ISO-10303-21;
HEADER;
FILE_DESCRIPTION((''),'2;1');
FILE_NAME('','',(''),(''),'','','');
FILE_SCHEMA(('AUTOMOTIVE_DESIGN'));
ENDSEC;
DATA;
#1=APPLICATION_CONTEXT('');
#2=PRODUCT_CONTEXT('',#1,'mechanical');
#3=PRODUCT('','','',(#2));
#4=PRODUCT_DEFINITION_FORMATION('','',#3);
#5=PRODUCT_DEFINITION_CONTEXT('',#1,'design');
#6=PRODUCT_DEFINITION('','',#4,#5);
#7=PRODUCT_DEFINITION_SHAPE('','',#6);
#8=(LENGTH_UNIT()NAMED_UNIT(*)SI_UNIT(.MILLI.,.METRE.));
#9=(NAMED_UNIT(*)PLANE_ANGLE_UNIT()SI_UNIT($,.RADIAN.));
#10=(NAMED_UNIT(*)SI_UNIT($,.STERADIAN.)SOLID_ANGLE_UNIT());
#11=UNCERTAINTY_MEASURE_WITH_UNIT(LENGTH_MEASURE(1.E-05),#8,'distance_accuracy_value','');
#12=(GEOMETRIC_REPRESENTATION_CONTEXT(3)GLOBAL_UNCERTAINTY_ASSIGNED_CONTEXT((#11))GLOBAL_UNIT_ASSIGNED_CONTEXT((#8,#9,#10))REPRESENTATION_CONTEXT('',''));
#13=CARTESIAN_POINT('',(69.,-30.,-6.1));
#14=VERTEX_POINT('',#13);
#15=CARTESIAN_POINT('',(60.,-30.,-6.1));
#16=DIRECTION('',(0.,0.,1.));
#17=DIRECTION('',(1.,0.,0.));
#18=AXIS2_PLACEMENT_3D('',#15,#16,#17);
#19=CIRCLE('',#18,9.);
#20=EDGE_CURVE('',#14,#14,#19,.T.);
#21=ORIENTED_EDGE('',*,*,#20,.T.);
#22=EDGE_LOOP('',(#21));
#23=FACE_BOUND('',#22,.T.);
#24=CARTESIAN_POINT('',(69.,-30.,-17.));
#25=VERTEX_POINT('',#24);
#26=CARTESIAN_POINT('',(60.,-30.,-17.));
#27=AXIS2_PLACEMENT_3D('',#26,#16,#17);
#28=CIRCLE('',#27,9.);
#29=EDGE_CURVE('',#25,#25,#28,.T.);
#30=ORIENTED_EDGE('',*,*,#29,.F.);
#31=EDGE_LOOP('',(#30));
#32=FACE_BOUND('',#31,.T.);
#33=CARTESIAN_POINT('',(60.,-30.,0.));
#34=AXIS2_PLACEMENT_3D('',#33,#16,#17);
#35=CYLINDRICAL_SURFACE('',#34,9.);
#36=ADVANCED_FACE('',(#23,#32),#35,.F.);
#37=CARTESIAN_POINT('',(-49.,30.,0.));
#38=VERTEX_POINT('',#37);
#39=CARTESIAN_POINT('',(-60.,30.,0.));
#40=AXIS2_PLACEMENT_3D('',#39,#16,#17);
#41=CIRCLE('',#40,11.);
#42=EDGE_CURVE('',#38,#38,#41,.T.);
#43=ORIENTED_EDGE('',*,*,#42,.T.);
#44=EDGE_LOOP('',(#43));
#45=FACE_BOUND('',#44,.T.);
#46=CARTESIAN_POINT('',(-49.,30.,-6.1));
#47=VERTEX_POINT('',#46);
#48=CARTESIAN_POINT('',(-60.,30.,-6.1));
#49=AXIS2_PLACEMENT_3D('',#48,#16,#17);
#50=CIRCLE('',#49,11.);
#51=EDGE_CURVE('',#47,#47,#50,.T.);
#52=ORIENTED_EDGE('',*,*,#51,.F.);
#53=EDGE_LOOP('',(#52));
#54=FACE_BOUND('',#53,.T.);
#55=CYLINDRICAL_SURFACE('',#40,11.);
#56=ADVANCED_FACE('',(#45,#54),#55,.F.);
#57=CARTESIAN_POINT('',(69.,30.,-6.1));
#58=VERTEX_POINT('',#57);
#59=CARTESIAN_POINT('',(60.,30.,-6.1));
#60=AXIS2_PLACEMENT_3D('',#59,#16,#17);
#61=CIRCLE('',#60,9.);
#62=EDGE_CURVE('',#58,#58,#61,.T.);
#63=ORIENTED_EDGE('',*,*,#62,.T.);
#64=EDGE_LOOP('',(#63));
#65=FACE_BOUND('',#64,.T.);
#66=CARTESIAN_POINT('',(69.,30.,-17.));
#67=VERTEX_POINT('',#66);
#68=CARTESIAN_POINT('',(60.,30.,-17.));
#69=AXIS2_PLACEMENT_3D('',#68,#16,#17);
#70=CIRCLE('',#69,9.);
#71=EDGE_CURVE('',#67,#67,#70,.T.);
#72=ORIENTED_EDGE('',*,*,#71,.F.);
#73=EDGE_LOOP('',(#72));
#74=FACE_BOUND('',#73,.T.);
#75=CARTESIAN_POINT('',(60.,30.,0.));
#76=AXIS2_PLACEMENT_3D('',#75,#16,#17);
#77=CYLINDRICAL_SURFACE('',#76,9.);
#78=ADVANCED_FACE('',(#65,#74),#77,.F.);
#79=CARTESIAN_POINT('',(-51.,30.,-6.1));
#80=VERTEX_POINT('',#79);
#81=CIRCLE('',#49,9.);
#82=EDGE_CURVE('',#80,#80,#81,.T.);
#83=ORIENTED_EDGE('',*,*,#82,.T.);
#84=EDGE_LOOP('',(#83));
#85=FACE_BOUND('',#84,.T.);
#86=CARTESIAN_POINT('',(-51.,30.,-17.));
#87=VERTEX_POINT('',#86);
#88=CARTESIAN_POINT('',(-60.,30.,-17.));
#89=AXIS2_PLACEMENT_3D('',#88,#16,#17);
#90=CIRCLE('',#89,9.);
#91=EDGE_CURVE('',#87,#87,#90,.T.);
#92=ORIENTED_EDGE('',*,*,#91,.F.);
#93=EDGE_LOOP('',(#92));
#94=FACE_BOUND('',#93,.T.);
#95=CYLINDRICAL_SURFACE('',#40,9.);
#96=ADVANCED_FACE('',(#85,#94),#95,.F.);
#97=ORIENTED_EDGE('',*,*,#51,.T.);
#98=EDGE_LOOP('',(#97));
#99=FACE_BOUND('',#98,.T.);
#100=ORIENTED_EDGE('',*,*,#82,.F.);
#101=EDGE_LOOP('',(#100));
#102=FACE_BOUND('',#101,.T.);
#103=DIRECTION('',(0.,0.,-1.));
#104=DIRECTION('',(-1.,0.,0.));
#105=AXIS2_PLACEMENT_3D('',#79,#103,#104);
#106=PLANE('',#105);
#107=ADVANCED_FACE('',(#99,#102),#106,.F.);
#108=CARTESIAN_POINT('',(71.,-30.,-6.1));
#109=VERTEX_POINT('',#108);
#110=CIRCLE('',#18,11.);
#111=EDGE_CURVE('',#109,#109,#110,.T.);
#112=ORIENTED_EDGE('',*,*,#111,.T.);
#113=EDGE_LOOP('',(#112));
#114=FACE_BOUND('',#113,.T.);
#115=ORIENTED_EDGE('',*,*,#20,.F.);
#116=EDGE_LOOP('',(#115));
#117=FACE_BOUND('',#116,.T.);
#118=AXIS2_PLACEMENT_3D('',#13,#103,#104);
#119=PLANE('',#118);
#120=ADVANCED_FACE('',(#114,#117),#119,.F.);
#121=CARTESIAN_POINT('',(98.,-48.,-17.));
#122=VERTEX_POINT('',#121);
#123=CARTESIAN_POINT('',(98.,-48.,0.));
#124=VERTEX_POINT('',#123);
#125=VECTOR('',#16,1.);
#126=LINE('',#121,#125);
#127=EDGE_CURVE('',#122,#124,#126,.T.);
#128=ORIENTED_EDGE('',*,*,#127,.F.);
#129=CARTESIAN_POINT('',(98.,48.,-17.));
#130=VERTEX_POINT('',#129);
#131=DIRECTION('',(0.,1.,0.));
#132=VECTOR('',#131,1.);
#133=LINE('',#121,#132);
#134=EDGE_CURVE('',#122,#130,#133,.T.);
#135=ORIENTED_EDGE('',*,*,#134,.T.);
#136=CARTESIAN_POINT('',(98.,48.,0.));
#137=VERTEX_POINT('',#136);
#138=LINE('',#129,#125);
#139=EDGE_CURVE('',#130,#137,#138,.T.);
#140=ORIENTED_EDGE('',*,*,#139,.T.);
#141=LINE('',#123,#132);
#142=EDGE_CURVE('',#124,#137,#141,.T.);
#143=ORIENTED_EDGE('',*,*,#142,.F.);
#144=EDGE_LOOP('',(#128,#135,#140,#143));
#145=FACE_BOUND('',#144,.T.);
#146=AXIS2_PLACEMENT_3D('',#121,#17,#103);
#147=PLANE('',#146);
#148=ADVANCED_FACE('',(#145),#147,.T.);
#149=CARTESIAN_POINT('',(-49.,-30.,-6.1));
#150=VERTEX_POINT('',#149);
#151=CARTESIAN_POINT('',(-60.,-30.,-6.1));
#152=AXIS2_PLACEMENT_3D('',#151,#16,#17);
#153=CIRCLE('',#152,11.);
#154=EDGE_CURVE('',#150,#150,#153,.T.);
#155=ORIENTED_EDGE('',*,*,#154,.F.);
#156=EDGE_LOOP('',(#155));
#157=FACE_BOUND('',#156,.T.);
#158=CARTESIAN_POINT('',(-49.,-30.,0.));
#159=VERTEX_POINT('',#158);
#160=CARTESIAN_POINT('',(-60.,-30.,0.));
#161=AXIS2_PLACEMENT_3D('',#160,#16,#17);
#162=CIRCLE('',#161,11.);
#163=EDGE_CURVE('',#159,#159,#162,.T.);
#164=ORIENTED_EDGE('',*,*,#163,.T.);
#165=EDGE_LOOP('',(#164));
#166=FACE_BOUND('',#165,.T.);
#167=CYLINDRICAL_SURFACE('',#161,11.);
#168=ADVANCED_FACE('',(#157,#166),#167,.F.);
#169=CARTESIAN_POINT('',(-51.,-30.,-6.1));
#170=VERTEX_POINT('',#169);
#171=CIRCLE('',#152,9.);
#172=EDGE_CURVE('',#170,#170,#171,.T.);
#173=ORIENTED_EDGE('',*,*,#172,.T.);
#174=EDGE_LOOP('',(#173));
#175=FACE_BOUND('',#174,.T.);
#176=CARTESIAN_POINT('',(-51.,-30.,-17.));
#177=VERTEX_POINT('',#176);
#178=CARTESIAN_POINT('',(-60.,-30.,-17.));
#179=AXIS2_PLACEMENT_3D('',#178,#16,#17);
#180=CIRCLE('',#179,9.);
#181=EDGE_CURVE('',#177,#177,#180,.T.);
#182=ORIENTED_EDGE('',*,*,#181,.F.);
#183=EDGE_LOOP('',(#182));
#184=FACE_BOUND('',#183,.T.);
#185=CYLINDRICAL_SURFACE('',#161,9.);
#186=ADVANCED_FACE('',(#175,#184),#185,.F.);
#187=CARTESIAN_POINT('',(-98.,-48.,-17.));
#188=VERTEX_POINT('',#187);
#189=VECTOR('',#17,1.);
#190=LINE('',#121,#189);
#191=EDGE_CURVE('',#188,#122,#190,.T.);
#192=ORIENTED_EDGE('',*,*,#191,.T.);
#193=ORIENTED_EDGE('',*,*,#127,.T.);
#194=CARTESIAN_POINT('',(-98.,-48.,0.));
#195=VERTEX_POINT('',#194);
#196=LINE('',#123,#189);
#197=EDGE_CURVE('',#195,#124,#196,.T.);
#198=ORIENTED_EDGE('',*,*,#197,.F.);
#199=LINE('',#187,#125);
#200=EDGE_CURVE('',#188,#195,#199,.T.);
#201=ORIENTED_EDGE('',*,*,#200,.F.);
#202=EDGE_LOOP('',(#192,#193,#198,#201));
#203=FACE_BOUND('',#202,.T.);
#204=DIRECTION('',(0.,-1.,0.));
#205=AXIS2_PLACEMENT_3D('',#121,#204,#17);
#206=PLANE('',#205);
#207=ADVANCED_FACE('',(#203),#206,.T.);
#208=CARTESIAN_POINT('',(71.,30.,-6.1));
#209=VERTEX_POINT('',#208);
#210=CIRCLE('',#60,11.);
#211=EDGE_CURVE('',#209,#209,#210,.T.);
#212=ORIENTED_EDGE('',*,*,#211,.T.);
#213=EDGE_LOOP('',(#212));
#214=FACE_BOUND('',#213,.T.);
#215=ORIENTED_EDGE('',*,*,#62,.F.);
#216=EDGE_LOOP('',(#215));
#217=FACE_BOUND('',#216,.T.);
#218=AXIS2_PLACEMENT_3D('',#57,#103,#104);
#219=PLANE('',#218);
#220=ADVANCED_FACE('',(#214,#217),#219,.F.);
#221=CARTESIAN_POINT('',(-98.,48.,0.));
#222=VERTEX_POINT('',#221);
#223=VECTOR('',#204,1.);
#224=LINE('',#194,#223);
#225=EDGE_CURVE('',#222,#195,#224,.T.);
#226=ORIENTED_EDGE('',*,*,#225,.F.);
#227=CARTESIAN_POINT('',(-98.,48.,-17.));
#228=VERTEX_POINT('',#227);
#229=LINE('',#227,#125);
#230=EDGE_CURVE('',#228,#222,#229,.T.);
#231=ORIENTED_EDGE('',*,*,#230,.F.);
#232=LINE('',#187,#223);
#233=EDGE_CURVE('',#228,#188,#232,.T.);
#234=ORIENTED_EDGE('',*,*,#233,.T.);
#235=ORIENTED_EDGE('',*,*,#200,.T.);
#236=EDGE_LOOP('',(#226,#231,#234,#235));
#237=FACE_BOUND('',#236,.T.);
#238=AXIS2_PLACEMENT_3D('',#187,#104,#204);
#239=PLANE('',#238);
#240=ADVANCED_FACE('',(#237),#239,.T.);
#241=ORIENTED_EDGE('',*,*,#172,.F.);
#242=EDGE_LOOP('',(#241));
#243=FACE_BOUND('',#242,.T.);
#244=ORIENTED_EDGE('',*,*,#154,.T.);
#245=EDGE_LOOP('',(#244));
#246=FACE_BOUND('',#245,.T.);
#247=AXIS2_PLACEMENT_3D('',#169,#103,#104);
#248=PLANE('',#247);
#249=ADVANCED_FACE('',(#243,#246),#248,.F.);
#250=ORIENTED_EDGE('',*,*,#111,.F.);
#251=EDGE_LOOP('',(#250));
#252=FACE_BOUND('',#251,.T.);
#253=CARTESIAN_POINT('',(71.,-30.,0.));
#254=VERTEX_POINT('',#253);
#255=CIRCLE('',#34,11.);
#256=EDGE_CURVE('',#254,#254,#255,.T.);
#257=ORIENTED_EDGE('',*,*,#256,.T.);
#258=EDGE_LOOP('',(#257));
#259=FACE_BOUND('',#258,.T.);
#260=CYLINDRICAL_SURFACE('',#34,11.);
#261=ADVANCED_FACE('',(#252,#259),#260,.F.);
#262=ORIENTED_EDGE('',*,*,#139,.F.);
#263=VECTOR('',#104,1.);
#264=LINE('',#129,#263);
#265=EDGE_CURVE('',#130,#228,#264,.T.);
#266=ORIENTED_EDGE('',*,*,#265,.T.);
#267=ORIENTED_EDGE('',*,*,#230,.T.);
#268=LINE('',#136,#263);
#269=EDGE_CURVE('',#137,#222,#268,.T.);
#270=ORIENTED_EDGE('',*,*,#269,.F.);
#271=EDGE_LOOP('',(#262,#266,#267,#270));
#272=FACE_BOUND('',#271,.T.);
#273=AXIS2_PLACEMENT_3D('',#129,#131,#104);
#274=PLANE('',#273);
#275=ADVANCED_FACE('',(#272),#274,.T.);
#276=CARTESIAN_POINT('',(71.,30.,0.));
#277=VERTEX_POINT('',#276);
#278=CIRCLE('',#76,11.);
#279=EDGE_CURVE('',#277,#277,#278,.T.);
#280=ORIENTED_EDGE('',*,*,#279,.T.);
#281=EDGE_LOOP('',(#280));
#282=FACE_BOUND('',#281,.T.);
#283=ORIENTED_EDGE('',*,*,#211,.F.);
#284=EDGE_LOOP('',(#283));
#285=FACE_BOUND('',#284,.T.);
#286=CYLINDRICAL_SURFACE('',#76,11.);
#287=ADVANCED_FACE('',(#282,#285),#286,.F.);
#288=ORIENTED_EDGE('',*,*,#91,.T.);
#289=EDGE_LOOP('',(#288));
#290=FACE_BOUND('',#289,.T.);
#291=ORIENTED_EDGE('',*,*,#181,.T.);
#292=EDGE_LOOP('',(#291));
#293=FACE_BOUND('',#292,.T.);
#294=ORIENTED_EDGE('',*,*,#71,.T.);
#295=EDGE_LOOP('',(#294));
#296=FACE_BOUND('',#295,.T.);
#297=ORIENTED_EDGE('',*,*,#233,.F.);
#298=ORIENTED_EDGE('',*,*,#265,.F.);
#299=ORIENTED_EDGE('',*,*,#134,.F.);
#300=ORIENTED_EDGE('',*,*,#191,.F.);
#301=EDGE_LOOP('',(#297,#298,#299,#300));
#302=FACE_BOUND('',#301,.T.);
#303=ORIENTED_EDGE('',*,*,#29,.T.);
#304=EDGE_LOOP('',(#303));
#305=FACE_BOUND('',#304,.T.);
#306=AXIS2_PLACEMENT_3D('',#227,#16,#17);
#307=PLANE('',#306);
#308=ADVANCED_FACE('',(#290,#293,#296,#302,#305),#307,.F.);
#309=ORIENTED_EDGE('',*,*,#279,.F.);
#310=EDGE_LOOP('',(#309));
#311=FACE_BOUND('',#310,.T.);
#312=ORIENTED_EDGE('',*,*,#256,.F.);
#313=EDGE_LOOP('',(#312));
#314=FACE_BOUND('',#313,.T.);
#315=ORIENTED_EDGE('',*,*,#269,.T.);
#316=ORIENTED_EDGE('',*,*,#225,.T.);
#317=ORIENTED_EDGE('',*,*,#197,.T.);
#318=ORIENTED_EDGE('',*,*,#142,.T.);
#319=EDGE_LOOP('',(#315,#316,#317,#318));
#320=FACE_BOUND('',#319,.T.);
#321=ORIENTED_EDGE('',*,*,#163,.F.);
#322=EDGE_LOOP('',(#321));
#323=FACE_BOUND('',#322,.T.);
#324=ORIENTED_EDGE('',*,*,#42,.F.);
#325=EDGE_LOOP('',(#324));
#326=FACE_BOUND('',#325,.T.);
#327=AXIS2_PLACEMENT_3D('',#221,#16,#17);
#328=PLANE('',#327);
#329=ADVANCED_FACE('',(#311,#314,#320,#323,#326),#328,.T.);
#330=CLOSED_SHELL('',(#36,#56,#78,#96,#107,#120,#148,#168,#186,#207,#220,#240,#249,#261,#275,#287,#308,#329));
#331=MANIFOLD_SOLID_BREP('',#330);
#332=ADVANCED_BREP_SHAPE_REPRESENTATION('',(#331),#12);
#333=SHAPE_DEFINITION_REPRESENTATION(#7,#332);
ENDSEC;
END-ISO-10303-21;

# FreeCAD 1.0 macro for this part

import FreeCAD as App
import Part
import Sketcher

V = App.Vector


def add_polygon(sketch, points):
    """Adds a closed chain of lines whose ends are joined by coincident constraints."""
    first, n = sketch.GeometryCount, len(points)
    for a, b in zip(points, points[1:] + points[:1]):
        sketch.addGeometry(Part.LineSegment(App.Vector(*a, 0), App.Vector(*b, 0)), False)
    for i in range(n):
        sketch.addConstraint(Sketcher.Constraint("Coincident", first + i, 2, first + (i + 1) % n, 1))

doc = App.newDocument("Part")
body = doc.addObject("PartDesign::Body", "Body")

# Sketch on XY plane
sketch1 = body.newObject("Sketcher::SketchObject", "Sketch")
sketch1.AttachmentSupport = (doc.getObject("XY_Plane"), [""])
sketch1.MapMode = "FlatFace"
add_polygon(sketch1, [(-98, 48), (-98, -48), (98, -48), (98, 48)])  # lines 0-3
sketch1.addConstraint([
    Sketcher.Constraint("Vertical", 0),
    Sketcher.Constraint("Horizontal", 1),
    Sketcher.Constraint("Vertical", 2),
    Sketcher.Constraint("Horizontal", 3),
    Sketcher.Constraint("Symmetric", 0, 2, 2, 2, -1, 1),
    Sketcher.Constraint("DistanceX", 1, 1, 1, 2, 196.0),
    Sketcher.Constraint("DistanceY", 0, 2, 0, 1, 96.0),
])
pad1 = body.newObject("PartDesign::Pad", "Pad")
pad1.Profile = sketch1
pad1.Length = 17
pad1.Reversed = True

# Sketch on XY plane
sketch2 = body.newObject("Sketcher::SketchObject", "Sketch001")
sketch2.AttachmentSupport = (doc.getObject("XY_Plane"), [""])
sketch2.MapMode = "FlatFace"
sketch2.addGeometry([
    Part.Circle(V(60, 30, 0), V(0, 0, 1), 9),
    Part.Circle(V(-60, 30, 0), V(0, 0, 1), 9),
    Part.Circle(V(-60, -30, 0), V(0, 0, 1), 9),
    Part.Circle(V(60, -30, 0), V(0, 0, 1), 9),
], False)
sketch2.addConstraint([
    Sketcher.Constraint("Equal", 0, 1),
    Sketcher.Constraint("Equal", 1, 2),
    Sketcher.Constraint("Equal", 2, 3),
    Sketcher.Constraint("Symmetric", 0, 3, 2, 3, -1, 1),
    Sketcher.Constraint("Symmetric", 1, 3, 3, 3, -1, 1),
    Sketcher.Constraint("Symmetric", 0, 3, 1, 3, -2),
    Sketcher.Constraint("Diameter", 0, 18.0),
    Sketcher.Constraint("DistanceX", -1, 1, 0, 3, 60.0),
    Sketcher.Constraint("DistanceY", -1, 1, 0, 3, 30.0),
])
doc.recompute()
hole = body.newObject("PartDesign::Hole", "Hole")
hole.Profile = sketch2
hole.ThreadType = "None"
hole.Diameter = 18
hole.DepthType = "ThroughAll"
hole.HoleCutType = "Counterbore"
hole.HoleCutDiameter = 22
hole.HoleCutDepth = 6.1

doc.recompute()
